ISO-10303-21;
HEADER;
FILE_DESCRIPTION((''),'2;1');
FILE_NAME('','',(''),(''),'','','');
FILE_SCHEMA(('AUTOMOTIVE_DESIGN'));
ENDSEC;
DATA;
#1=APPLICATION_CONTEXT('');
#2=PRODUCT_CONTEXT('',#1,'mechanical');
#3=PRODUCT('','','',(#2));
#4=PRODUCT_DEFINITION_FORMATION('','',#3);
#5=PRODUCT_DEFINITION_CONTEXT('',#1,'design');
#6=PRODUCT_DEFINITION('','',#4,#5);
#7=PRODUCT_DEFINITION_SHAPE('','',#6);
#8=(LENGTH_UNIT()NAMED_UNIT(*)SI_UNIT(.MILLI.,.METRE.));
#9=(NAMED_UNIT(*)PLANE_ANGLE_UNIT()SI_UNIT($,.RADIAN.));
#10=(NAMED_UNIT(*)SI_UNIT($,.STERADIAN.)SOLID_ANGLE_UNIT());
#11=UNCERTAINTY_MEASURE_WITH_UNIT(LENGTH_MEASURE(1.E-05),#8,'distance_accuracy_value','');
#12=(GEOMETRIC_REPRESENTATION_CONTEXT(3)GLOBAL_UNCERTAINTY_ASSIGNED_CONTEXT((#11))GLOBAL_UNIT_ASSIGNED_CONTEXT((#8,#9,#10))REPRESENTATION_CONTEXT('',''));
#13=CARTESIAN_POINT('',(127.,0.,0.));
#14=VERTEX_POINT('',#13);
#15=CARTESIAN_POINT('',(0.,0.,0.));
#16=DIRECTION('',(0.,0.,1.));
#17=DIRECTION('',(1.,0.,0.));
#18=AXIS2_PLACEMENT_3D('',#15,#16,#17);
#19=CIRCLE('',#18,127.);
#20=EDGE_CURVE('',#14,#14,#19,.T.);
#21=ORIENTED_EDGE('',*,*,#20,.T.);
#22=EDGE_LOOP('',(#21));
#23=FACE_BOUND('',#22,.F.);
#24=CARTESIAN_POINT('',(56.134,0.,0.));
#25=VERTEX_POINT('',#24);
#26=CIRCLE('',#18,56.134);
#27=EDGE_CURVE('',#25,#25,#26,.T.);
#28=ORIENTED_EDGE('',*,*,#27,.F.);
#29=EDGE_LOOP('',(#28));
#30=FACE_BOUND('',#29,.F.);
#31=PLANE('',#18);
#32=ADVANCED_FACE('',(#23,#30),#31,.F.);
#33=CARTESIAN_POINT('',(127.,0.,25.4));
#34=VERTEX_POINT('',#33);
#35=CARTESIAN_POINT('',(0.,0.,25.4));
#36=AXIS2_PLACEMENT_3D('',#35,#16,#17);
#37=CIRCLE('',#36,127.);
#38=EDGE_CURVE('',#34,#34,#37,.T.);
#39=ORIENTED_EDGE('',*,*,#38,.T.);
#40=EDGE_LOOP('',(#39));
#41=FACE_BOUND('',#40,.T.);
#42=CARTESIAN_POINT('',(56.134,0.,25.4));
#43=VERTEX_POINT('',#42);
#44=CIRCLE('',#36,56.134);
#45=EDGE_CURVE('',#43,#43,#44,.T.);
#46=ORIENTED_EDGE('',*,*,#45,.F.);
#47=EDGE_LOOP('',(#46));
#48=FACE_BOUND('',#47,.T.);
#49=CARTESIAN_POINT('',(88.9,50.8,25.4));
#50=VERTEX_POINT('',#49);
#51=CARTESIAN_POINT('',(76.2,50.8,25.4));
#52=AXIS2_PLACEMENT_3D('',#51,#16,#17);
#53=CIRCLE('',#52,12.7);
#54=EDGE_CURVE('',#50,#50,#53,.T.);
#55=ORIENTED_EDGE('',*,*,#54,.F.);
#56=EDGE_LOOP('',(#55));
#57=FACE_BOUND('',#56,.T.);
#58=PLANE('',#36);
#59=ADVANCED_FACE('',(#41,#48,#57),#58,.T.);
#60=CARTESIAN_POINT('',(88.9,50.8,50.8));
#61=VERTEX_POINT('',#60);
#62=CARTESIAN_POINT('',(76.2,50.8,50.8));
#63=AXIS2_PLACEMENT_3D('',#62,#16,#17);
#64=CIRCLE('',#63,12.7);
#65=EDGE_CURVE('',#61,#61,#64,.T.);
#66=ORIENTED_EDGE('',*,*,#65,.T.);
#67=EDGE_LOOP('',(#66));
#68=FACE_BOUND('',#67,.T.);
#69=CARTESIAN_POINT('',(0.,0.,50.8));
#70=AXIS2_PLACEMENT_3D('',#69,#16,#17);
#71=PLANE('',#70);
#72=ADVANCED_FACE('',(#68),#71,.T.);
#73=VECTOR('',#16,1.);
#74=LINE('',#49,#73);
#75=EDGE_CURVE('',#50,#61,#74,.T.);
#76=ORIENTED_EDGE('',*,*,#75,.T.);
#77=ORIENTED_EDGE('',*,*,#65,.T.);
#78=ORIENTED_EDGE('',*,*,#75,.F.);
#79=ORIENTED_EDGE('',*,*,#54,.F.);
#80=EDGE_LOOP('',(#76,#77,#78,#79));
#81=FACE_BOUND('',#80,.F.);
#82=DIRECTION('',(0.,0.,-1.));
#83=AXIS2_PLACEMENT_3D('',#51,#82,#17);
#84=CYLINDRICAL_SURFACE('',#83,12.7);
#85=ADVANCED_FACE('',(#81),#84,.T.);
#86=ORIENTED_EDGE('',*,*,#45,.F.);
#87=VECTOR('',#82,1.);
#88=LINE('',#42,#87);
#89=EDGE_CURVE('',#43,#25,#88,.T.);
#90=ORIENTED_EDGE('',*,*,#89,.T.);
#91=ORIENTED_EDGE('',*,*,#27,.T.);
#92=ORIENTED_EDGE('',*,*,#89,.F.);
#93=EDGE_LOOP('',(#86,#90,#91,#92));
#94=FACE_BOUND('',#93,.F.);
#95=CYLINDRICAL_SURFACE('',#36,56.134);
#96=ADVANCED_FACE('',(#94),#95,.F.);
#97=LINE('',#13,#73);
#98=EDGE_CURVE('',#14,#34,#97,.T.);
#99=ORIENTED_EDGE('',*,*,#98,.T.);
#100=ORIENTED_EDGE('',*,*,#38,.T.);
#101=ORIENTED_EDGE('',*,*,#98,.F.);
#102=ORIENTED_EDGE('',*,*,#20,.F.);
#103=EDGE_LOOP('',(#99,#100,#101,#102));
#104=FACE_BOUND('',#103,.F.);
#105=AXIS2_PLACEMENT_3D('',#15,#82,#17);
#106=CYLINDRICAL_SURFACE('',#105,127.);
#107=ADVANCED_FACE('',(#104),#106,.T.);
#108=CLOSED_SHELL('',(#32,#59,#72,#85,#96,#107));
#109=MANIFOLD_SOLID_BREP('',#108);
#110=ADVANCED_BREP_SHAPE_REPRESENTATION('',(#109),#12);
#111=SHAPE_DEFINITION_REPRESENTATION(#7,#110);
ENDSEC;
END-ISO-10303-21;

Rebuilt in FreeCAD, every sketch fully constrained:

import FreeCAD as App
import Part
import Sketcher

V = App.Vector
Q = App.Units.Quantity

doc = App.newDocument("Part")
body = doc.addObject("PartDesign::Body", "Body")

# Sketch on XY plane
sketch1 = body.newObject("Sketcher::SketchObject", "Sketch")
sketch1.AttachmentSupport = (doc.getObject("XY_Plane"), [""])
sketch1.MapMode = "FlatFace"
sketch1.addGeometry(Part.Circle(V(0, 0, 0), V(0, 0, 1), 127), False)
sketch1.addConstraint(Sketcher.Constraint("Coincident", 0, 3, -1, 1))
sketch1.addConstraint(Sketcher.Constraint("Diameter", 0, Q("10 in")))
pad1 = body.newObject("PartDesign::Pad", "Pad")
pad1.Profile = sketch1
pad1.Length = Q("1 in")

# Sketch on XY plane
sketch2 = body.newObject("Sketcher::SketchObject", "Sketch001")
sketch2.AttachmentSupport = (doc.getObject("XY_Plane"), [""])
sketch2.MapMode = "FlatFace"
sketch2.AttachmentOffset = App.Placement(V(0, 0, 1 * 25.4), App.Rotation())
sketch2.addGeometry(Part.Circle(V(0, 0, 0), V(0, 0, 1), 56), False)
sketch2.addConstraint(Sketcher.Constraint("Coincident", 0, 3, -1, 1))
sketch2.addConstraint(Sketcher.Constraint("Diameter", 0, Q("4.42 in")))
pocket1 = body.newObject("PartDesign::Pocket", "Pocket")
pocket1.Profile = sketch2
pocket1.Length = Q("1 in")

# Sketch on XY plane
sketch3 = body.newObject("Sketcher::SketchObject", "Sketch002")
sketch3.AttachmentSupport = (doc.getObject("XY_Plane"), [""])
sketch3.MapMode = "FlatFace"
sketch3.AttachmentOffset = App.Placement(V(0, 0, 1 * 25.4), App.Rotation())
sketch3.addGeometry(Part.Circle(V(76, 51, 0), V(0, 0, 1), 13), False)
sketch3.addConstraint(Sketcher.Constraint("Diameter", 0, Q("1 in")))
sketch3.addConstraint(Sketcher.Constraint("DistanceX", -1, 1, 0, 3, Q("3 in")))
sketch3.addConstraint(Sketcher.Constraint("DistanceY", -1, 1, 0, 3, Q("2 in")))
pad2 = body.newObject("PartDesign::Pad", "Pad001")
pad2.Profile = sketch3
pad2.Length = Q("1 in")

doc.recompute()
